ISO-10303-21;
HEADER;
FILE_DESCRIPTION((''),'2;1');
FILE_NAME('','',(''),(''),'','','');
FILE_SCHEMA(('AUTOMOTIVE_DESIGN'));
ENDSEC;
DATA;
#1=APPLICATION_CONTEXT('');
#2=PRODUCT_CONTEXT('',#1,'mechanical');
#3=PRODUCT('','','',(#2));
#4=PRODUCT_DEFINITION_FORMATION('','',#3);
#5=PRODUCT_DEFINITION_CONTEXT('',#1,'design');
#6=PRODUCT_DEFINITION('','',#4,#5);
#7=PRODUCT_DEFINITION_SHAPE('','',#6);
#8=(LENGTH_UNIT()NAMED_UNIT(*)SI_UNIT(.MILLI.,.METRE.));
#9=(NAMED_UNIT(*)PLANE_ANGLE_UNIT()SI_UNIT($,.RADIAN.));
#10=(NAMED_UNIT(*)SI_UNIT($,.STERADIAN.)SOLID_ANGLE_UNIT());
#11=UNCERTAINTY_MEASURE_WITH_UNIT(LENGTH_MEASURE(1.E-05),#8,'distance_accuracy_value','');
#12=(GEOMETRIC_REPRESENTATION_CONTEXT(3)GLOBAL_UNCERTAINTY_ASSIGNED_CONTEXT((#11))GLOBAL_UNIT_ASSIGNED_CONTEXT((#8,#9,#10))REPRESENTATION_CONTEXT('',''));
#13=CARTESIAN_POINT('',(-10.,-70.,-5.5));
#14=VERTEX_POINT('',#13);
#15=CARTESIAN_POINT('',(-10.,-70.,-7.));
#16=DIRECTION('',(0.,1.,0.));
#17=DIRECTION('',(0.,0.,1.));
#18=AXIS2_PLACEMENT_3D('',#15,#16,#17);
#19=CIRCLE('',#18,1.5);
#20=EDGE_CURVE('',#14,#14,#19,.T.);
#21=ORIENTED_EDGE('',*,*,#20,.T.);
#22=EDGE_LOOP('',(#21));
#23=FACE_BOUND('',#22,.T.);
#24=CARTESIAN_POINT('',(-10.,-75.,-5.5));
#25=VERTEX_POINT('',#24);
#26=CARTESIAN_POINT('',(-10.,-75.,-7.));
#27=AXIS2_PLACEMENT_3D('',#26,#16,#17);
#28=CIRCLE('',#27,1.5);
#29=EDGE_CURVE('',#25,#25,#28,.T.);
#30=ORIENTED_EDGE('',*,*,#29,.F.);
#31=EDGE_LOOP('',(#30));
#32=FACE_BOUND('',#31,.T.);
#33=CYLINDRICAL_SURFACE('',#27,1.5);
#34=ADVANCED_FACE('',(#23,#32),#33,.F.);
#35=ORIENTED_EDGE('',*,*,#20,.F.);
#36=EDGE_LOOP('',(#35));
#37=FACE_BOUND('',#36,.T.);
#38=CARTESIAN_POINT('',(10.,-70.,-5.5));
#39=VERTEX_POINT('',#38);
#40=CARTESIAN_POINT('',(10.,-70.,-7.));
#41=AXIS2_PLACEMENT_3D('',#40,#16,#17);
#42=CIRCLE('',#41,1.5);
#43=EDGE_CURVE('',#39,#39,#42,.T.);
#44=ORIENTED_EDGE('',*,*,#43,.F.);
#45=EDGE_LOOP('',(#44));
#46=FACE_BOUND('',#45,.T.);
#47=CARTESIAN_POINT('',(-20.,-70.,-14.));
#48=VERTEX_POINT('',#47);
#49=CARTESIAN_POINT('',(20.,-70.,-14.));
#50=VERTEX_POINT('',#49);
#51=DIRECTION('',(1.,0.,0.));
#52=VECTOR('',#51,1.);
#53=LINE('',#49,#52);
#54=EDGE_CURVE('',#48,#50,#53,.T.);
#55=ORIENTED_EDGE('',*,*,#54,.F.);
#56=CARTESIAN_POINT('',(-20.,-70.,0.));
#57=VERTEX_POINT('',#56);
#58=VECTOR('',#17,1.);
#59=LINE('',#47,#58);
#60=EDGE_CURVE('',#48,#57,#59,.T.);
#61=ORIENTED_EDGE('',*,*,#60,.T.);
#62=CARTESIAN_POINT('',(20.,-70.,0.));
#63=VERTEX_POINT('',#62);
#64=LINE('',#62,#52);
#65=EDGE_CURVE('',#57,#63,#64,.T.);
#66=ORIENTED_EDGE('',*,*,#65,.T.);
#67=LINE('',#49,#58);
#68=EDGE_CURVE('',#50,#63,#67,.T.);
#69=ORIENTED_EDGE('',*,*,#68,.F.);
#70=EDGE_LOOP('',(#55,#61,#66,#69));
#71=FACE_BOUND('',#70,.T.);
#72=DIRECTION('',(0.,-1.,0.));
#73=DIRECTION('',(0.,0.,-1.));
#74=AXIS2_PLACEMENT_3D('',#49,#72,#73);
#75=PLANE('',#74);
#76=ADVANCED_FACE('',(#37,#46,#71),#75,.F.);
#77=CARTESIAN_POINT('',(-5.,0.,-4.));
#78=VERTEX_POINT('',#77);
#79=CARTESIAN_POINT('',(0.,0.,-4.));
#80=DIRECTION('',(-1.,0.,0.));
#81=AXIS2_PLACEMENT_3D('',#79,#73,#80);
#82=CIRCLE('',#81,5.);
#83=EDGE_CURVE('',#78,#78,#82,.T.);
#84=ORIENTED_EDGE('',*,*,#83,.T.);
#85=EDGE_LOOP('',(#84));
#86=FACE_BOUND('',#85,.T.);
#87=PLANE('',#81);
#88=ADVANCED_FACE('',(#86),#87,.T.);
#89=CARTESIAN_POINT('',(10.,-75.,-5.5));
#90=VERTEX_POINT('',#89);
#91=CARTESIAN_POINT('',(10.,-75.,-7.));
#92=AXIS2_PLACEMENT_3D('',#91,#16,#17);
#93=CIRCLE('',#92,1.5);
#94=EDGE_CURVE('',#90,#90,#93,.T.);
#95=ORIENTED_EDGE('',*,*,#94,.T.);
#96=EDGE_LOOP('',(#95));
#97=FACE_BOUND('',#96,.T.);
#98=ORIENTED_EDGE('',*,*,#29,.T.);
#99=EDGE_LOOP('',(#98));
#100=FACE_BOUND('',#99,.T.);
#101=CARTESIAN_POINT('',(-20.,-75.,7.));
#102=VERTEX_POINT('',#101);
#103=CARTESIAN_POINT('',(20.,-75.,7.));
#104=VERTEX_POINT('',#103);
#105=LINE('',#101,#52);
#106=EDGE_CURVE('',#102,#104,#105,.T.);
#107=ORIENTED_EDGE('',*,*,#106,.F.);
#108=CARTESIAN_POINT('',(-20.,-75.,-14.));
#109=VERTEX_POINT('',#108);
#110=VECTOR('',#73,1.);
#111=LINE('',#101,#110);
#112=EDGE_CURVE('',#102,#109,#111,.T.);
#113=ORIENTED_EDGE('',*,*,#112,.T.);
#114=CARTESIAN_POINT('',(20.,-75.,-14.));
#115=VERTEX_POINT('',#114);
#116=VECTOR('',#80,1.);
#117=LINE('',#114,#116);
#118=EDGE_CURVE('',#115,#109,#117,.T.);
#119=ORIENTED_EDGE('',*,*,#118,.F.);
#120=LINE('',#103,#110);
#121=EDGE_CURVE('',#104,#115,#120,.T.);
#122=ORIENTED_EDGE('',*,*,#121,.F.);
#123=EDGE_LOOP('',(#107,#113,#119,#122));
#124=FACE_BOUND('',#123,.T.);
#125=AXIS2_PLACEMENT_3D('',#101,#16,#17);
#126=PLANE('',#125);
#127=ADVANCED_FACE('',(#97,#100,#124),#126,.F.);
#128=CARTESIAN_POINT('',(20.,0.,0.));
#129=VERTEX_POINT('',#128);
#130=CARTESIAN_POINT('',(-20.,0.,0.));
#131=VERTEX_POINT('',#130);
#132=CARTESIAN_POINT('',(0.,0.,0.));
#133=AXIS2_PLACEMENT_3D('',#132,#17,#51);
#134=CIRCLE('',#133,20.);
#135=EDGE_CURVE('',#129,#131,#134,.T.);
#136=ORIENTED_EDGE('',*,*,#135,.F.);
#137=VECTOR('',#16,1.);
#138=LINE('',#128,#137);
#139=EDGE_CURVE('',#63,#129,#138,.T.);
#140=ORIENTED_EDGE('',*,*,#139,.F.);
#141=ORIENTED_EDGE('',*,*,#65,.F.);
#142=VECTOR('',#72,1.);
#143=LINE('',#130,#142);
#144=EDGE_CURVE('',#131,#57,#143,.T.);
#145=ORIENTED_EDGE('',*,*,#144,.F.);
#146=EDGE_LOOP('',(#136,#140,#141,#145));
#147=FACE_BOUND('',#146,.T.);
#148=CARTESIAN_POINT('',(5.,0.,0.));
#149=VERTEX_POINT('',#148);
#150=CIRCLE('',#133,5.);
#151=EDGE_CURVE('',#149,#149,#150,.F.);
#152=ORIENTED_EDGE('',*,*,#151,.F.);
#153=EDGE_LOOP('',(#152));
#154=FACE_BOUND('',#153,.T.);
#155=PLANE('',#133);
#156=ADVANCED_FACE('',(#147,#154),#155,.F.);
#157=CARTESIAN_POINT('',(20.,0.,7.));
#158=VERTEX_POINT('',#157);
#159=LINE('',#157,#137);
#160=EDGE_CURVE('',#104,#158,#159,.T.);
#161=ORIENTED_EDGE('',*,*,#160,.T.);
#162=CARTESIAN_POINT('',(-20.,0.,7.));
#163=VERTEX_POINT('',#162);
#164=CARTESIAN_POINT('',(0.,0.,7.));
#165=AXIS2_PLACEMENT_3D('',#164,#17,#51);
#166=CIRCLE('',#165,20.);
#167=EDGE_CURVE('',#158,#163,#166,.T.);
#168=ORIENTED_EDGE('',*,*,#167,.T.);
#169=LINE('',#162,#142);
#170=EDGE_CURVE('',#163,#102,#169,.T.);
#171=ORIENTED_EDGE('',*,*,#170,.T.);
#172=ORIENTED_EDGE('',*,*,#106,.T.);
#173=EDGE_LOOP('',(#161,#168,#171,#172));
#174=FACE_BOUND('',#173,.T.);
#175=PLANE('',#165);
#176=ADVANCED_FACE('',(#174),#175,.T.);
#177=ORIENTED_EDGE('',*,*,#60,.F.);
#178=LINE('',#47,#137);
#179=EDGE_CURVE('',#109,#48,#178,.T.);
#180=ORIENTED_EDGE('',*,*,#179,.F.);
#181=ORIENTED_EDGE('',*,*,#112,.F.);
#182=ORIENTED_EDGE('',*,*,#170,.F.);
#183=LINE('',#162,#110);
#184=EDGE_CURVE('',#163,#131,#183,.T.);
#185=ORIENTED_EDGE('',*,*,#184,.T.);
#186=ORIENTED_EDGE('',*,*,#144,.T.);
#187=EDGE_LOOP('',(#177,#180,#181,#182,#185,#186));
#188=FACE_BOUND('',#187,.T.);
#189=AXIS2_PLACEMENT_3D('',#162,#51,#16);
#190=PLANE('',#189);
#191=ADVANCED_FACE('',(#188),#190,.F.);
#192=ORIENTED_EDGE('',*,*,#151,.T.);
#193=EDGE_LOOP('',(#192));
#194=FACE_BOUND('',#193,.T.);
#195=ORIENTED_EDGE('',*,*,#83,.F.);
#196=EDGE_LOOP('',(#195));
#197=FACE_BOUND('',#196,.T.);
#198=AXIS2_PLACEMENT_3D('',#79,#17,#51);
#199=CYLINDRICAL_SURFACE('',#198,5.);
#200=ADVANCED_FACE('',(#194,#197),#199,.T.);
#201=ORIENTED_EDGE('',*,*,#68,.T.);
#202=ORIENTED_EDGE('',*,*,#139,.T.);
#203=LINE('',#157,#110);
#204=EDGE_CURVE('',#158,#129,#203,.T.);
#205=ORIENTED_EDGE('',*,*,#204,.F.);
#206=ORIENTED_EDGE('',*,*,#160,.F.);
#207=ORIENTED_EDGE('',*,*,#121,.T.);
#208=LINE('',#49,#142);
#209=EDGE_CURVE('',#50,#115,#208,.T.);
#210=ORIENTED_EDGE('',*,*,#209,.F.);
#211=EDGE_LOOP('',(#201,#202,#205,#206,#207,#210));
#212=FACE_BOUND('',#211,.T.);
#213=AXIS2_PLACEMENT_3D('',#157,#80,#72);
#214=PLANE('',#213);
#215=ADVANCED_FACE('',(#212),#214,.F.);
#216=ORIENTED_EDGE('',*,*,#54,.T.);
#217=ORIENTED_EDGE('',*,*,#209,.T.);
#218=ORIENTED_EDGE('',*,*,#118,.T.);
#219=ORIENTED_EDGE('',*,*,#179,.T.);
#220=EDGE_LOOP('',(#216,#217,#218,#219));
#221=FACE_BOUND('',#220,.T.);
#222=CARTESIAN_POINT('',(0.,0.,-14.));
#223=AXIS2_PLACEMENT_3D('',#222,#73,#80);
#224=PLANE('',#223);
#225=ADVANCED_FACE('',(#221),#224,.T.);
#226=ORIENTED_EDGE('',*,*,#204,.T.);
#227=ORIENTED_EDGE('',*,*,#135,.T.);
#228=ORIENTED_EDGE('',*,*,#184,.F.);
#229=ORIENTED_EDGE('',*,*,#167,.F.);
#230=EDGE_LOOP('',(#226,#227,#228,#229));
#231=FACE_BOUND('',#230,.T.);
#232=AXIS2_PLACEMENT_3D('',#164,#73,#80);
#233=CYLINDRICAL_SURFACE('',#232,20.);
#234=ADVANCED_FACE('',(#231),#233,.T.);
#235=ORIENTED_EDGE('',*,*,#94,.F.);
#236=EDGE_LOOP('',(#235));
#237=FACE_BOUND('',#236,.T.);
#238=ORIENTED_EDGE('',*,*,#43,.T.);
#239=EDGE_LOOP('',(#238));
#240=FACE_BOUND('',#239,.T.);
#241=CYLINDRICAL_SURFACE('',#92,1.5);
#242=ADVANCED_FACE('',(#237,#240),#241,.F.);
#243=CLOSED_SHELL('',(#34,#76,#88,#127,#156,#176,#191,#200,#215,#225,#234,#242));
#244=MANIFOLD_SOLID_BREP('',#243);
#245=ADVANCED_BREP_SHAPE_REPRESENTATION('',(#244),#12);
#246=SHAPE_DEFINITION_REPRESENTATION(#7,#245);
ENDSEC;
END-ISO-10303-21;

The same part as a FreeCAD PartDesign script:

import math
import FreeCAD as App
import Part
import Sketcher
from FreeCAD import Vector
Q = App.Units.Quantity

doc = App.newDocument("Part")
body = doc.addObject("PartDesign::Body", "Body")

# Sketch on XY plane
sketch1 = body.newObject("Sketcher::SketchObject", "Sketch")
sketch1.AttachmentSupport = (doc.getObject("XY_Plane"), [""])
sketch1.MapMode = "FlatFace"
sketch1.addGeometry([
    Part.LineSegment(Vector(20, -75, 0), Vector(20, 0, 0)),
    Part.ArcOfCircle(Part.Circle(Vector(0, 0, 0), Vector(0, 0, 1), 20), math.radians(0), math.radians(180)),
    Part.LineSegment(Vector(-20, 0, 0), Vector(-20, -75, 0)),
    Part.LineSegment(Vector(-20, -75, 0), Vector(20, -75, 0)),
], False)
sketch1.addConstraint([
    Sketcher.Constraint("Tangent", 0, 2, 1, 1),
    Sketcher.Constraint("Tangent", 1, 2, 2, 1),
    Sketcher.Constraint("Coincident", 2, 2, 3, 1),
    Sketcher.Constraint("Coincident", 3, 2, 0, 1),
    Sketcher.Constraint("Vertical", 0),
    Sketcher.Constraint("Vertical", 2),
    Sketcher.Constraint("Horizontal", 3),
    Sketcher.Constraint("Coincident", 1, 3, -1, 1),
    Sketcher.Constraint("Radius", 1, Q("20 mm")),
    Sketcher.Constraint("DistanceY", 0, 1, 0, 2, Q("75 mm")),
])
pad1 = body.newObject("PartDesign::Pad", "Pad")
pad1.Profile = sketch1
pad1.Length = 7

# Sketch on XY plane
sketch2 = body.newObject("Sketcher::SketchObject", "Sketch001")
sketch2.AttachmentSupport = (doc.getObject("XY_Plane"), [""])
sketch2.MapMode = "FlatFace"
sketch2.addGeometry(Part.Circle(Vector(0, 0, 0), Vector(0, 0, 1), 5), False)
sketch2.addConstraint([
    Sketcher.Constraint("Coincident", 0, 3, -1, 1),
    Sketcher.Constraint("Diameter", 0, Q("10 mm")),
])
pad2 = body.newObject("PartDesign::Pad", "Pad001")
pad2.Profile = sketch2
pad2.Length = 4
pad2.Reversed = True

# Sketch on XY plane
sketch3 = body.newObject("Sketcher::SketchObject", "Sketch002")
sketch3.AttachmentSupport = (doc.getObject("XY_Plane"), [""])
sketch3.MapMode = "FlatFace"
sketch3.addGeometry([
    Part.LineSegment(Vector(20, -70, 0), Vector(20, -75, 0)),
    Part.LineSegment(Vector(20, -75, 0), Vector(-20, -75, 0)),
    Part.LineSegment(Vector(-20, -75, 0), Vector(-20, -70, 0)),
    Part.LineSegment(Vector(-20, -70, 0), Vector(20, -70, 0)),
], False)
sketch3.addConstraint([
    Sketcher.Constraint("Coincident", 0, 2, 1, 1),
    Sketcher.Constraint("Coincident", 1, 2, 2, 1),
    Sketcher.Constraint("Coincident", 2, 2, 3, 1),
    Sketcher.Constraint("Coincident", 3, 2, 0, 1),
    Sketcher.Constraint("Vertical", 0),
    Sketcher.Constraint("Horizontal", 1),
    Sketcher.Constraint("Vertical", 2),
    Sketcher.Constraint("Horizontal", 3),
    Sketcher.Constraint("DistanceX", 1, 2, 1, 1, Q("40 mm")),
    Sketcher.Constraint("DistanceY", 0, 2, 0, 1, Q("5 mm")),
    Sketcher.Constraint("DistanceX", -1, 1, 0, 2, Q("20 mm")),
    Sketcher.Constraint("DistanceY", 0, 2, -1, 1, Q("75 mm")),
])
pad3 = body.newObject("PartDesign::Pad", "Pad002")
pad3.Profile = sketch3
pad3.Length = 14
pad3.Reversed = True

# Sketch on XZ plane
sketch4 = body.newObject("Sketcher::SketchObject", "Sketch003")
sketch4.AttachmentSupport = (doc.getObject("XZ_Plane"), [""])
sketch4.MapMode = "FlatFace"
sketch4.AttachmentOffset = App.Placement(Vector(0, 0, 70), App.Rotation())
sketch4.addGeometry([
    Part.Circle(Vector(10, -7, 0), Vector(0, 0, 1), 1.5),
    Part.Circle(Vector(-10, -7, 0), Vector(0, 0, 1), 1.5),
], False)
sketch4.addConstraint([
    Sketcher.Constraint("Equal", 0, 1),
    Sketcher.Constraint("Symmetric", 0, 3, 1, 3, -2),
    Sketcher.Constraint("Diameter", 0, Q("3 mm")),
    Sketcher.Constraint("DistanceX", -1, 1, 0, 3, Q("10 mm")),
    Sketcher.Constraint("DistanceY", 0, 3, -1, 1, Q("7 mm")),
])
pocket1 = body.newObject("PartDesign::Pocket", "Pocket")
pocket1.Profile = sketch4
pocket1.Type = "ThroughAll"
pocket1.Reversed = True

doc.recompute()
